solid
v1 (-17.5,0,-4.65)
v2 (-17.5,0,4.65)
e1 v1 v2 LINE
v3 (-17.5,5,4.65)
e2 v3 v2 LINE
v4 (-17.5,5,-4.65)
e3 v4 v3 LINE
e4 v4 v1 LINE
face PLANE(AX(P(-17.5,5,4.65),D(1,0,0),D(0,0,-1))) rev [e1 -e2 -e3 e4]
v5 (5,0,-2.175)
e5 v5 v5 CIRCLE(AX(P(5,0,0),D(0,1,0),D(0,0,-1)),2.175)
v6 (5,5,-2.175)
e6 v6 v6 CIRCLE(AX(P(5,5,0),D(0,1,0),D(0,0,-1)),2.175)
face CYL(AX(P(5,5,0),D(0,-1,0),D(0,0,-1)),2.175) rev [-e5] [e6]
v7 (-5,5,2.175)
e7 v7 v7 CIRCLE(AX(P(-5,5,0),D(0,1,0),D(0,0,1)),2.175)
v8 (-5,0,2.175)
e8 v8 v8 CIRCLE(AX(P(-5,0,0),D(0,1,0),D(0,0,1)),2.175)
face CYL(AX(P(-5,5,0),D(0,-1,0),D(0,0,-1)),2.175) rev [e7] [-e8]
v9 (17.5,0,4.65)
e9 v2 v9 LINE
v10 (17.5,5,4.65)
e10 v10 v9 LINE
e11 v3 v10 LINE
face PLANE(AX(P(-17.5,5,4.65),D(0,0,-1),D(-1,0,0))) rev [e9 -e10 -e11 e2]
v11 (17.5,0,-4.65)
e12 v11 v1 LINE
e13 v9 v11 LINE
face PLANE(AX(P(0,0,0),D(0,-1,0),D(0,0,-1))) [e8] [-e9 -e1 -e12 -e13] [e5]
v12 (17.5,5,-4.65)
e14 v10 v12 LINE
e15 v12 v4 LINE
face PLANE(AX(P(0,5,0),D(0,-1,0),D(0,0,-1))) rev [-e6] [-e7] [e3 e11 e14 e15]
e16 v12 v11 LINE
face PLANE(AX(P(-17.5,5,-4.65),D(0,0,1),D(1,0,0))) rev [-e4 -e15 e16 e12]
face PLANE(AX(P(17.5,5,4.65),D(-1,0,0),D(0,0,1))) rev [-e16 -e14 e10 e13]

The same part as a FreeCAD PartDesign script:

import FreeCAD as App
import Part
import Sketcher
Q = App.Units.Quantity


def add_polygon(sketch, points):
    """Adds a closed chain of lines whose ends are joined by coincident constraints."""
    first, n = sketch.GeometryCount, len(points)
    for a, b in zip(points, points[1:] + points[:1]):
        sketch.addGeometry(Part.LineSegment(App.Vector(*a, 0), App.Vector(*b, 0)), False)
    for i in range(n):
        sketch.addConstraint(Sketcher.Constraint("Coincident", first + i, 2, first + (i + 1) % n, 1))

doc = App.newDocument("Part")
params = doc.addObject("Spreadsheet::Sheet", "Params")
for row, (alias, value) in enumerate([
    ("sketch1_diameter", "4.35 mm"),
    ("sketch1_width", "35 mm"),
    ("sketch1_height", "9.3 mm"),
    ("pad1_length", "5 mm"),
], start=1):
    params.set(f"A{row}", alias)
    params.set(f"B{row}", "=" + value)
    params.setAlias(f"B{row}", alias)

body = doc.addObject("PartDesign::Body", "Body")

# Sketch on XZ plane
sketch1 = body.newObject("Sketcher::SketchObject", "Sketch")
sketch1.AttachmentSupport = (doc.getObject("XZ_Plane"), [""])
sketch1.MapMode = "FlatFace"
add_polygon(sketch1, [(-17.5, -4.7), (-17.5, 4.7), (17.5, 4.7), (17.5, -4.7)])  # lines 0-3
sketch1.addGeometry(Part.Circle(App.Vector(-5, 0, 0), App.Vector(0, 0, 1), 2.2), False)  # 4
sketch1.addGeometry(Part.Circle(App.Vector(5, 0, 0), App.Vector(0, 0, 1), 2.2), False)  # 5
sketch1.addConstraint(Sketcher.Constraint("Vertical", 0))
sketch1.addConstraint(Sketcher.Constraint("Horizontal", 1))
sketch1.addConstraint(Sketcher.Constraint("Vertical", 2))
sketch1.addConstraint(Sketcher.Constraint("Horizontal", 3))
sketch1.addConstraint(Sketcher.Constraint("Equal", 4, 5))
sketch1.addConstraint(Sketcher.Constraint("Symmetric", 4, 3, 5, 3, -1, 1))
sketch1.addConstraint(Sketcher.Constraint("Symmetric", 0, 2, 2, 2, -1, 1))
sketch1.addConstraint(Sketcher.Constraint("PointOnObject", 4, 3, -1))
sketch1.addConstraint(Sketcher.Constraint("Diameter", 4, Q("4.35 mm")))
sketch1.addConstraint(Sketcher.Constraint("DistanceX", 1, 1, 1, 2, Q("35 mm")))
sketch1.addConstraint(Sketcher.Constraint("DistanceY", 0, 1, 0, 2, Q("9.3 mm")))
sketch1.addConstraint(Sketcher.Constraint("DistanceX", 4, 3, -1, 1, Q("5 mm")))
sketch1.setExpression("Constraints[12]", "Params.sketch1_diameter")
sketch1.setExpression("Constraints[13]", "Params.sketch1_width")
sketch1.setExpression("Constraints[14]", "Params.sketch1_height")
pad1 = body.newObject("PartDesign::Pad", "Pad")
pad1.Profile = sketch1
pad1.setExpression("Length", "Params.pad1_length")
pad1.Reversed = True

doc.recompute()
